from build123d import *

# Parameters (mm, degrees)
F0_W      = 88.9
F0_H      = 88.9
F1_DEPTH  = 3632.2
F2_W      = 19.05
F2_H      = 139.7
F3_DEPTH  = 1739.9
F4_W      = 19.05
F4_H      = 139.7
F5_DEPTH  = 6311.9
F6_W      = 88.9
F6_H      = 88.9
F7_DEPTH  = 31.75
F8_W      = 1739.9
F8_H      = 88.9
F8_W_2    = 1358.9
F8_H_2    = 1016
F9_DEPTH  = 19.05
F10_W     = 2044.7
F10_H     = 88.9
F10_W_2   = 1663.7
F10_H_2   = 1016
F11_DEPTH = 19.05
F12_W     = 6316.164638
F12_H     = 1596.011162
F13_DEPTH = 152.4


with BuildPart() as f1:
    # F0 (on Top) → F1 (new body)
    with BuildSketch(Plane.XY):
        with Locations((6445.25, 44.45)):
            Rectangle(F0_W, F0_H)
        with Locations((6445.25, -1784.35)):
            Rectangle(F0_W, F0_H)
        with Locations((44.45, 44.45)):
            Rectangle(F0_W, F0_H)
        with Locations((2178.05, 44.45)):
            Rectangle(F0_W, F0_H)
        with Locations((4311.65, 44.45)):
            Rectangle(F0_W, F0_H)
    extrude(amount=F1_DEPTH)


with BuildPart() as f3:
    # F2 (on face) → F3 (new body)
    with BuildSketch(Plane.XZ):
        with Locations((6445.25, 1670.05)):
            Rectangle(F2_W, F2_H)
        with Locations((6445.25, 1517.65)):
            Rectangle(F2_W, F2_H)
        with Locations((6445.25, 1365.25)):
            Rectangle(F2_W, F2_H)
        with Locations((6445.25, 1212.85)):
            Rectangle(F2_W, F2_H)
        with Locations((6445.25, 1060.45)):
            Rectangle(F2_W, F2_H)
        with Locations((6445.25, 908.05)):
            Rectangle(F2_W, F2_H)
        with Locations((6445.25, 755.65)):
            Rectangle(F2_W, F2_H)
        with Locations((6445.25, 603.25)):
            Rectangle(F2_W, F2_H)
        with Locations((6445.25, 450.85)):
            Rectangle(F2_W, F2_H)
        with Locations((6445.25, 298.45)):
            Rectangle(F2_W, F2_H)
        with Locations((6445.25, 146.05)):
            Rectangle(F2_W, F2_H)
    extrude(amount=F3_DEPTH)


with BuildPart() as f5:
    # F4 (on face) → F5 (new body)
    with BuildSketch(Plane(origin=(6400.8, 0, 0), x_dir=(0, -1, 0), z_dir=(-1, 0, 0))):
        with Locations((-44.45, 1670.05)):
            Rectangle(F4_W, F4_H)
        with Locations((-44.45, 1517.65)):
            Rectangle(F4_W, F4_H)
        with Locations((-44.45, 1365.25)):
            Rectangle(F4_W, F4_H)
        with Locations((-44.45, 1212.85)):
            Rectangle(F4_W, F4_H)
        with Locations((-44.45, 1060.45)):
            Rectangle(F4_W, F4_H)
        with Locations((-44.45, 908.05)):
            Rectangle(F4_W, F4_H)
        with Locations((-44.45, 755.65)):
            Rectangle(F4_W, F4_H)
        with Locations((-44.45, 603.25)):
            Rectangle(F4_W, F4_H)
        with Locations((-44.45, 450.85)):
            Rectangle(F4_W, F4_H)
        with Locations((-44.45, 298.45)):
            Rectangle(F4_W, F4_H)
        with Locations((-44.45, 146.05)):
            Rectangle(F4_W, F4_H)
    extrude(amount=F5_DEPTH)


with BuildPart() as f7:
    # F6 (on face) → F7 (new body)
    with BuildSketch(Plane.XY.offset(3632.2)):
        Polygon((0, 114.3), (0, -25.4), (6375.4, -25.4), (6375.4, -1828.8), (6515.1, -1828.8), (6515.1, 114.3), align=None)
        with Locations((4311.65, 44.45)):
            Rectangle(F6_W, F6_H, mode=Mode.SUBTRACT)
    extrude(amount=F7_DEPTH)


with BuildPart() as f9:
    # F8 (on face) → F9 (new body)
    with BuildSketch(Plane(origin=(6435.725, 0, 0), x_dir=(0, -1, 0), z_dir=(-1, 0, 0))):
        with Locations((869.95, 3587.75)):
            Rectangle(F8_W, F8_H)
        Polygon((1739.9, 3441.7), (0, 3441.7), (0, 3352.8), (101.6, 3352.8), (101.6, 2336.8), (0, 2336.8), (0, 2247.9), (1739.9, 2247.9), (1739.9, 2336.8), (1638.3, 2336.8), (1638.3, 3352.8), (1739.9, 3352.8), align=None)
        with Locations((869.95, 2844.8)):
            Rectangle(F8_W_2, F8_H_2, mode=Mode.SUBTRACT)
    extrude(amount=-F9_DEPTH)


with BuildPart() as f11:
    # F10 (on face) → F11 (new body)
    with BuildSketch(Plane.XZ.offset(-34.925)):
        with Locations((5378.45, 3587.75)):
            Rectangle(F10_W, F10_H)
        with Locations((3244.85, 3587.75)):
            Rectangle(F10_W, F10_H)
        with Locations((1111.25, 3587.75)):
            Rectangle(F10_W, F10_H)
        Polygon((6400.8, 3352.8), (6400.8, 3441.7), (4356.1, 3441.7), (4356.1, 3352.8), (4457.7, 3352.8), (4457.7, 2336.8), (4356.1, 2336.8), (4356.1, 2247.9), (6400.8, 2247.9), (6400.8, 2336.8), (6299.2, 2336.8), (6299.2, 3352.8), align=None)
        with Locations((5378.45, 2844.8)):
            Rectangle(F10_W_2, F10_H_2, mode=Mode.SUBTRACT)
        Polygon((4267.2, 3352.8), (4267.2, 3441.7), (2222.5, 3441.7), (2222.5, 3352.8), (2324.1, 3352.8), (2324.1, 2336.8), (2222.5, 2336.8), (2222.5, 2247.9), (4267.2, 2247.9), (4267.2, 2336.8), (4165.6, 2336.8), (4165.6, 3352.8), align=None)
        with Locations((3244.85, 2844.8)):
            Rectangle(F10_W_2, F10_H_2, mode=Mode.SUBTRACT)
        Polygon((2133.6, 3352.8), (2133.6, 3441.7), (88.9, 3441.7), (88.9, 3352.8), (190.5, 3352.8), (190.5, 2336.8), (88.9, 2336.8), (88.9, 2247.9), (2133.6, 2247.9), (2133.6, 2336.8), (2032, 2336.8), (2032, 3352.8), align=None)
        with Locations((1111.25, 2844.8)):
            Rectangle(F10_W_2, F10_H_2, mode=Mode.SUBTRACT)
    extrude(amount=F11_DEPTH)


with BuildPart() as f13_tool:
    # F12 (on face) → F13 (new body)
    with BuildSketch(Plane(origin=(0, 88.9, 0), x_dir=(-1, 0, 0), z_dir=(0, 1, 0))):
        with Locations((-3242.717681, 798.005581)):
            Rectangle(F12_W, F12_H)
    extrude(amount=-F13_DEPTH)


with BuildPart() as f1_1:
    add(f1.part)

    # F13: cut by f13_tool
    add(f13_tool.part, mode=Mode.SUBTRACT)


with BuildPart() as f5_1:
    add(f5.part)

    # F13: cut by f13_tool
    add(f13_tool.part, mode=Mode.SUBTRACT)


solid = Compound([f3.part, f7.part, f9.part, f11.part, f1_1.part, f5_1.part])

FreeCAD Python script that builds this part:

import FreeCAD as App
import Part
import Sketcher
from FreeCAD import Vector
Q = App.Units.Quantity


def add_polygon(sketch, points):
    """Adds a closed chain of lines whose ends are joined by coincident constraints."""
    first, n = sketch.GeometryCount, len(points)
    for a, b in zip(points, points[1:] + points[:1]):
        sketch.addGeometry(Part.LineSegment(App.Vector(*a, 0), App.Vector(*b, 0)), False)
    for i in range(n):
        sketch.addConstraint(Sketcher.Constraint("Coincident", first + i, 2, first + (i + 1) % n, 1))

doc = App.newDocument("Part")
body = doc.addObject("PartDesign::Body", "Body")
body.AllowCompound = True

# Sketch on XY plane
sketch1 = doc.addObject("Sketcher::SketchObject", "Sketch")
body.addObject(sketch1)
sketch1.AttachmentSupport = (doc.XY_Plane, [""])
sketch1.MapMode = "FlatFace"
add_polygon(sketch1, [(6401, 89), (6401, 0), (6490, 0), (6490, 89)])  # lines 0-3
add_polygon(sketch1, [(6401, -1740), (6401, -1829), (6490, -1829), (6490, -1740)])  # lines 4-7
add_polygon(sketch1, [(0, 89), (0, 0), (89, 0), (89, 89)])  # lines 8-11
add_polygon(sketch1, [(2134, 89), (2134, 0), (2222, 0), (2222, 89)])  # lines 12-15
add_polygon(sketch1, [(4267, 89), (4267, 0), (4356, 0), (4356, 89)])  # lines 16-19
sketch1.addConstraint([
    Sketcher.Constraint("Vertical", 0),
    Sketcher.Constraint("Horizontal", 1),
    Sketcher.Constraint("Vertical", 2),
    Sketcher.Constraint("Horizontal", 3),
    Sketcher.Constraint("Vertical", 4),
    Sketcher.Constraint("Horizontal", 5),
    Sketcher.Constraint("Vertical", 6),
    Sketcher.Constraint("Horizontal", 7),
    Sketcher.Constraint("Vertical", 8),
    Sketcher.Constraint("Horizontal", 9),
    Sketcher.Constraint("Vertical", 10),
    Sketcher.Constraint("Horizontal", 11),
    Sketcher.Constraint("Vertical", 12),
    Sketcher.Constraint("Horizontal", 13),
    Sketcher.Constraint("Vertical", 14),
    Sketcher.Constraint("Horizontal", 15),
    Sketcher.Constraint("Vertical", 16),
    Sketcher.Constraint("Horizontal", 17),
    Sketcher.Constraint("Vertical", 18),
    Sketcher.Constraint("Horizontal", 19),
    Sketcher.Constraint("Coincident", 8, 2, -1, 1),
    Sketcher.Constraint("PointOnObject", 0, 2, -1),
    Sketcher.Constraint("PointOnObject", 12, 2, -1),
    Sketcher.Constraint("PointOnObject", 16, 2, -1),
    Sketcher.Constraint("Horizontal", 3, 2, 10, 2),
    Sketcher.Constraint("Horizontal", 11, 2, 14, 2),
    Sketcher.Constraint("Horizontal", 15, 2, 18, 2),
    Sketcher.Constraint("Vertical", 3, 2, 4, 2),
    Sketcher.Constraint("Vertical", 2, 2, 5, 2),
    Sketcher.Constraint("Equal", 7, 9),
    Sketcher.Constraint("Equal", 11, 13),
    Sketcher.Constraint("Equal", 15, 17),
    Sketcher.Constraint("Equal", 19, 0),
    Sketcher.Constraint("Equal", 2, 4),
    Sketcher.Constraint("DistanceX", 1, 1, 1, 2, Q("3.5 in")),
    Sketcher.Constraint("DistanceX", -1, 1, 0, 2, Q("252 in")),
    Sketcher.Constraint("DistanceY", 4, 2, -1, 1, Q("72 in")),
    Sketcher.Constraint("DistanceX", -1, 1, 12, 2, Q("84 in")),
    Sketcher.Constraint("DistanceX", -1, 1, 16, 2, Q("168 in")),
])
pad1 = doc.addObject("PartDesign::Pad", "Pad")
body.addObject(pad1)
pad1.Profile = sketch1
pad1.Length = Q("143 in")
body2 = doc.addObject("PartDesign::Body", "Body001")
body2.AllowCompound = True

# Sketch on XZ plane
sketch2 = doc.addObject("Sketcher::SketchObject", "Sketch001")
body2.addObject(sketch2)
sketch2.AttachmentSupport = (doc.getObject("XZ_Plane001"), [""])
sketch2.MapMode = "FlatFace"
add_polygon(sketch2, [(6436, 1740), (6436, 1600), (6455, 1600), (6455, 1740)])  # lines 0-3
add_polygon(sketch2, [(6436, 1588), (6436, 1448), (6455, 1448), (6455, 1588)])  # lines 4-7
add_polygon(sketch2, [(6436, 1435), (6436, 1295), (6455, 1295), (6455, 1435)])  # lines 8-11
add_polygon(sketch2, [(6436, 1283), (6436, 1143), (6455, 1143), (6455, 1283)])  # lines 12-15
add_polygon(sketch2, [(6436, 1130), (6436, 991), (6455, 991), (6455, 1130)])  # lines 16-19
add_polygon(sketch2, [(6436, 978), (6436, 838), (6455, 838), (6455, 978)])  # lines 20-23
add_polygon(sketch2, [(6436, 826), (6436, 686), (6455, 686), (6455, 826)])  # lines 24-27
add_polygon(sketch2, [(6436, 673), (6436, 533), (6455, 533), (6455, 673)])  # lines 28-31
add_polygon(sketch2, [(6436, 521), (6436, 381), (6455, 381), (6455, 521)])  # lines 32-35
add_polygon(sketch2, [(6436, 368), (6436, 229), (6455, 229), (6455, 368)])  # lines 36-39
add_polygon(sketch2, [(6436, 216), (6436, 76), (6455, 76), (6455, 216)])  # lines 40-43
sketch2.addConstraint([
    Sketcher.Constraint("Vertical", 0),
    Sketcher.Constraint("Horizontal", 1),
    Sketcher.Constraint("Vertical", 2),
    Sketcher.Constraint("Horizontal", 3),
    Sketcher.Constraint("Vertical", 4),
    Sketcher.Constraint("Horizontal", 5),
    Sketcher.Constraint("Vertical", 6),
    Sketcher.Constraint("Horizontal", 7),
    Sketcher.Constraint("Vertical", 8),
    Sketcher.Constraint("Horizontal", 9),
    Sketcher.Constraint("Vertical", 10),
    Sketcher.Constraint("Horizontal", 11),
    Sketcher.Constraint("Vertical", 12),
    Sketcher.Constraint("Horizontal", 13),
    Sketcher.Constraint("Vertical", 14),
    Sketcher.Constraint("Horizontal", 15),
    Sketcher.Constraint("Vertical", 16),
    Sketcher.Constraint("Horizontal", 17),
    Sketcher.Constraint("Vertical", 18),
    Sketcher.Constraint("Horizontal", 19),
    Sketcher.Constraint("Vertical", 20),
    Sketcher.Constraint("Horizontal", 21),
    Sketcher.Constraint("Vertical", 22),
    Sketcher.Constraint("Horizontal", 23),
    Sketcher.Constraint("Vertical", 24),
    Sketcher.Constraint("Horizontal", 25),
    Sketcher.Constraint("Vertical", 26),
    Sketcher.Constraint("Horizontal", 27),
    Sketcher.Constraint("Vertical", 28),
    Sketcher.Constraint("Horizontal", 29),
    Sketcher.Constraint("Vertical", 30),
    Sketcher.Constraint("Horizontal", 31),
    Sketcher.Constraint("Vertical", 32),
    Sketcher.Constraint("Horizontal", 33),
    Sketcher.Constraint("Vertical", 34),
    Sketcher.Constraint("Horizontal", 35),
    Sketcher.Constraint("Vertical", 36),
    Sketcher.Constraint("Horizontal", 37),
    Sketcher.Constraint("Vertical", 38),
    Sketcher.Constraint("Horizontal", 39),
    Sketcher.Constraint("Vertical", 40),
    Sketcher.Constraint("Horizontal", 41),
    Sketcher.Constraint("Vertical", 42),
    Sketcher.Constraint("Horizontal", 43),
    Sketcher.Constraint("Vertical", 3, 2, 4, 2),
    Sketcher.Constraint("Vertical", 2, 2, 5, 2),
    Sketcher.Constraint("Vertical", 7, 2, 8, 2),
    Sketcher.Constraint("Vertical", 6, 2, 9, 2),
    Sketcher.Constraint("Vertical", 11, 2, 12, 2),
    Sketcher.Constraint("Vertical", 10, 2, 13, 2),
    Sketcher.Constraint("Vertical", 15, 2, 16, 2),
    Sketcher.Constraint("Vertical", 14, 2, 17, 2),
    Sketcher.Constraint("Vertical", 19, 2, 20, 2),
    Sketcher.Constraint("Vertical", 18, 2, 21, 2),
    Sketcher.Constraint("Vertical", 23, 2, 24, 2),
    Sketcher.Constraint("Vertical", 22, 2, 25, 2),
    Sketcher.Constraint("Vertical", 27, 2, 28, 2),
    Sketcher.Constraint("Vertical", 26, 2, 29, 2),
    Sketcher.Constraint("Vertical", 31, 2, 32, 2),
    Sketcher.Constraint("Vertical", 30, 2, 33, 2),
    Sketcher.Constraint("Vertical", 35, 2, 36, 2),
    Sketcher.Constraint("Vertical", 34, 2, 37, 2),
    Sketcher.Constraint("Vertical", 39, 2, 40, 2),
    Sketcher.Constraint("Vertical", 38, 2, 41, 2),
    Sketcher.Constraint("Equal", 2, 4),
    Sketcher.Constraint("Equal", 6, 8),
    Sketcher.Constraint("Equal", 10, 12),
    Sketcher.Constraint("Equal", 14, 16),
    Sketcher.Constraint("Equal", 18, 20),
    Sketcher.Constraint("Equal", 22, 24),
    Sketcher.Constraint("Equal", 26, 28),
    Sketcher.Constraint("Equal", 30, 32),
    Sketcher.Constraint("Equal", 34, 36),
    Sketcher.Constraint("Equal", 38, 40),
    Sketcher.Constraint("DistanceY", 0, 2, 0, 1, Q("5.5 in")),
    Sketcher.Constraint("DistanceY", -1, 1, 0, 2, Q("63 in")),
    Sketcher.Constraint("DistanceY", -1, 1, 4, 2, Q("57 in")),
    Sketcher.Constraint("DistanceY", -1, 1, 8, 2, Q("51 in")),
    Sketcher.Constraint("DistanceY", -1, 1, 12, 2, Q("45 in")),
    Sketcher.Constraint("DistanceY", -1, 1, 16, 2, Q("39 in")),
    Sketcher.Constraint("DistanceY", -1, 1, 20, 2, Q("33 in")),
    Sketcher.Constraint("DistanceY", -1, 1, 24, 2, Q("27 in")),
    Sketcher.Constraint("DistanceY", -1, 1, 28, 2, Q("21 in")),
    Sketcher.Constraint("DistanceY", -1, 1, 32, 2, Q("15 in")),
    Sketcher.Constraint("DistanceY", -1, 1, 36, 2, Q("9 in")),
    Sketcher.Constraint("DistanceY", -1, 1, 40, 2, Q("3 in")),
    Sketcher.Constraint("DistanceX", 1, 1, 1, 2, Q("0.75 in")),
    Sketcher.Constraint("DistanceX", -1, 1, 0, 2, Q("253.375 in")),
])
pad2 = doc.addObject("PartDesign::Pad", "Pad001")
body2.addObject(pad2)
pad2.Profile = sketch2
pad2.Length = Q("68.5 in")
body3 = doc.addObject("PartDesign::Body", "Body002")
body3.AllowCompound = True

# Sketch on YZ plane
sketch3 = doc.addObject("Sketcher::SketchObject", "Sketch002")
body3.addObject(sketch3)
sketch3.AttachmentSupport = (doc.getObject("YZ_Plane002"), [""])
sketch3.MapMode = "FlatFace"
sketch3.AttachmentOffset = App.Placement(Vector(0, 0, 252 * 25.4), App.Rotation())
add_polygon(sketch3, [(54, 1740), (54, 1600), (35, 1600), (35, 1740)])  # lines 0-3
add_polygon(sketch3, [(54, 1588), (54, 1448), (35, 1448), (35, 1588)])  # lines 4-7
add_polygon(sketch3, [(54, 1435), (54, 1295), (35, 1295), (35, 1435)])  # lines 8-11
add_polygon(sketch3, [(54, 1283), (54, 1143), (35, 1143), (35, 1283)])  # lines 12-15
add_polygon(sketch3, [(54, 1130), (54, 991), (35, 991), (35, 1130)])  # lines 16-19
add_polygon(sketch3, [(54, 978), (54, 838), (35, 838), (35, 978)])  # lines 20-23
add_polygon(sketch3, [(54, 826), (54, 686), (35, 686), (35, 826)])  # lines 24-27
add_polygon(sketch3, [(54, 673), (54, 533), (35, 533), (35, 673)])  # lines 28-31
add_polygon(sketch3, [(54, 521), (54, 381), (35, 381), (35, 521)])  # lines 32-35
add_polygon(sketch3, [(54, 368), (54, 229), (35, 229), (35, 368)])  # lines 36-39
add_polygon(sketch3, [(54, 216), (54, 76), (35, 76), (35, 216)])  # lines 40-43
sketch3.addConstraint([
    Sketcher.Constraint("Vertical", 0),
    Sketcher.Constraint("Horizontal", 1),
    Sketcher.Constraint("Vertical", 2),
    Sketcher.Constraint("Horizontal", 3),
    Sketcher.Constraint("Vertical", 4),
    Sketcher.Constraint("Horizontal", 5),
    Sketcher.Constraint("Vertical", 6),
    Sketcher.Constraint("Horizontal", 7),
    Sketcher.Constraint("Vertical", 8),
    Sketcher.Constraint("Horizontal", 9),
    Sketcher.Constraint("Vertical", 10),
    Sketcher.Constraint("Horizontal", 11),
    Sketcher.Constraint("Vertical", 12),
    Sketcher.Constraint("Horizontal", 13),
    Sketcher.Constraint("Vertical", 14),
    Sketcher.Constraint("Horizontal", 15),
    Sketcher.Constraint("Vertical", 16),
    Sketcher.Constraint("Horizontal", 17),
    Sketcher.Constraint("Vertical", 18),
    Sketcher.Constraint("Horizontal", 19),
    Sketcher.Constraint("Vertical", 20),
    Sketcher.Constraint("Horizontal", 21),
    Sketcher.Constraint("Vertical", 22),
    Sketcher.Constraint("Horizontal", 23),
    Sketcher.Constraint("Vertical", 24),
    Sketcher.Constraint("Horizontal", 25),
    Sketcher.Constraint("Vertical", 26),
    Sketcher.Constraint("Horizontal", 27),
    Sketcher.Constraint("Vertical", 28),
    Sketcher.Constraint("Horizontal", 29),
    Sketcher.Constraint("Vertical", 30),
    Sketcher.Constraint("Horizontal", 31),
    Sketcher.Constraint("Vertical", 32),
    Sketcher.Constraint("Horizontal", 33),
    Sketcher.Constraint("Vertical", 34),
    Sketcher.Constraint("Horizontal", 35),
    Sketcher.Constraint("Vertical", 36),
    Sketcher.Constraint("Horizontal", 37),
    Sketcher.Constraint("Vertical", 38),
    Sketcher.Constraint("Horizontal", 39),
    Sketcher.Constraint("Vertical", 40),
    Sketcher.Constraint("Horizontal", 41),
    Sketcher.Constraint("Vertical", 42),
    Sketcher.Constraint("Horizontal", 43),
    Sketcher.Constraint("Vertical", 3, 2, 4, 2),
    Sketcher.Constraint("Vertical", 2, 2, 5, 2),
    Sketcher.Constraint("Vertical", 7, 2, 8, 2),
    Sketcher.Constraint("Vertical", 6, 2, 9, 2),
    Sketcher.Constraint("Vertical", 11, 2, 12, 2),
    Sketcher.Constraint("Vertical", 10, 2, 13, 2),
    Sketcher.Constraint("Vertical", 15, 2, 16, 2),
    Sketcher.Constraint("Vertical", 14, 2, 17, 2),
    Sketcher.Constraint("Vertical", 19, 2, 20, 2),
    Sketcher.Constraint("Vertical", 18, 2, 21, 2),
    Sketcher.Constraint("Vertical", 23, 2, 24, 2),
    Sketcher.Constraint("Vertical", 22, 2, 25, 2),
    Sketcher.Constraint("Vertical", 27, 2, 28, 2),
    Sketcher.Constraint("Vertical", 26, 2, 29, 2),
    Sketcher.Constraint("Vertical", 31, 2, 32, 2),
    Sketcher.Constraint("Vertical", 30, 2, 33, 2),
    Sketcher.Constraint("Vertical", 35, 2, 36, 2),
    Sketcher.Constraint("Vertical", 34, 2, 37, 2),
    Sketcher.Constraint("Vertical", 39, 2, 40, 2),
    Sketcher.Constraint("Vertical", 38, 2, 41, 2),
    Sketcher.Constraint("Equal", 2, 4),
    Sketcher.Constraint("Equal", 6, 8),
    Sketcher.Constraint("Equal", 10, 12),
    Sketcher.Constraint("Equal", 14, 16),
    Sketcher.Constraint("Equal", 18, 20),
    Sketcher.Constraint("Equal", 22, 24),
    Sketcher.Constraint("Equal", 26, 28),
    Sketcher.Constraint("Equal", 30, 32),
    Sketcher.Constraint("Equal", 34, 36),
    Sketcher.Constraint("Equal", 38, 40),
    Sketcher.Constraint("DistanceY", 0, 2, 0, 1, Q("5.5 in")),
    Sketcher.Constraint("DistanceY", -1, 1, 0, 2, Q("63 in")),
    Sketcher.Constraint("DistanceY", -1, 1, 4, 2, Q("57 in")),
    Sketcher.Constraint("DistanceY", -1, 1, 8, 2, Q("51 in")),
    Sketcher.Constraint("DistanceY", -1, 1, 12, 2, Q("45 in")),
    Sketcher.Constraint("DistanceY", -1, 1, 16, 2, Q("39 in")),
    Sketcher.Constraint("DistanceY", -1, 1, 20, 2, Q("33 in")),
    Sketcher.Constraint("DistanceY", -1, 1, 24, 2, Q("27 in")),
    Sketcher.Constraint("DistanceY", -1, 1, 28, 2, Q("21 in")),
    Sketcher.Constraint("DistanceY", -1, 1, 32, 2, Q("15 in")),
    Sketcher.Constraint("DistanceY", -1, 1, 36, 2, Q("9 in")),
    Sketcher.Constraint("DistanceY", -1, 1, 40, 2, Q("3 in")),
    Sketcher.Constraint("DistanceX", 1, 2, 1, 1, Q("0.75 in")),
    Sketcher.Constraint("DistanceX", -1, 1, 0, 2, Q("2.125 in")),
])
pad3 = doc.addObject("PartDesign::Pad", "Pad002")
body3.addObject(pad3)
pad3.Profile = sketch3
pad3.Length = Q("248.5 in")
pad3.Reversed = True
body4 = doc.addObject("PartDesign::Body", "Body003")

# Sketch on XY plane
sketch4 = doc.addObject("Sketcher::SketchObject", "Sketch003")
body4.addObject(sketch4)
sketch4.AttachmentSupport = (doc.getObject("XY_Plane003"), [""])
sketch4.MapMode = "FlatFace"
sketch4.AttachmentOffset = App.Placement(Vector(0, 0, 143 * 25.4), App.Rotation())
add_polygon(sketch4, [(0, 114), (0, -25), (6375, -25), (6375, -1829), (6515, -1829), (6515, 114)])  # lines 0-5
add_polygon(sketch4, [(4356, 0), (4267, 0), (4267, 89), (4356, 89)])  # lines 6-9
sketch4.addConstraint([
    Sketcher.Constraint("Vertical", 0),
    Sketcher.Constraint("Horizontal", 1),
    Sketcher.Constraint("Vertical", 2),
    Sketcher.Constraint("Horizontal", 3),
    Sketcher.Constraint("Vertical", 4),
    Sketcher.Constraint("Horizontal", 5),
    Sketcher.Constraint("Horizontal", 6),
    Sketcher.Constraint("Vertical", 7),
    Sketcher.Constraint("Horizontal", 8),
    Sketcher.Constraint("Vertical", 9),
    Sketcher.Constraint("PointOnObject", 0, 2, -2),
    Sketcher.Constraint("PointOnObject", 6, 2, -1),
    Sketcher.Constraint("Equal", 3, 0),
    Sketcher.Constraint("Equal", 8, 7),
    Sketcher.Constraint("DistanceX", 1, 1, 1, 2, Q("251 in")),
    Sketcher.Constraint("DistanceY", 2, 2, 2, 1, Q("71 in")),
    Sketcher.Constraint("DistanceX", 3, 1, 3, 2, Q("5.5 in")),
    Sketcher.Constraint("DistanceX", 6, 2, 6, 1, Q("3.5 in")),
    Sketcher.Constraint("DistanceY", 0, 2, -1, 1, Q("1 in")),
    Sketcher.Constraint("DistanceX", -1, 1, 6, 2, Q("168 in")),
])
pad4 = doc.addObject("PartDesign::Pad", "Pad003")
body4.addObject(pad4)
pad4.Profile = sketch4
pad4.Length = Q("1.25 in")
body5 = doc.addObject("PartDesign::Body", "Body004")
body5.AllowCompound = True

# Sketch on YZ plane
sketch5 = doc.addObject("Sketcher::SketchObject", "Sketch004")
body5.addObject(sketch5)
sketch5.AttachmentSupport = (doc.getObject("YZ_Plane004"), [""])
sketch5.MapMode = "FlatFace"
sketch5.AttachmentOffset = App.Placement(Vector(0, 0, 253.375 * 25.4), App.Rotation())
add_polygon(sketch5, [(0, 3632), (0, 3543), (-1740, 3543), (-1740, 3632)])  # lines 0-3
add_polygon(sketch5, [(-1740, 3442), (0, 3442), (0, 3353), (-102, 3353), (-102, 2337), (0, 2337), (0, 2248), (-1740, 2248), (-1740, 2337), (-1638, 2337), (-1638, 3353), (-1740, 3353)])  # lines 4-15
add_polygon(sketch5, [(-1549, 2337), (-190, 2337), (-190, 3353), (-1549, 3353)])  # lines 16-19
sketch5.addConstraint([
    Sketcher.Constraint("Vertical", 0),
    Sketcher.Constraint("Horizontal", 1),
    Sketcher.Constraint("Vertical", 2),
    Sketcher.Constraint("Horizontal", 3),
    Sketcher.Constraint("Horizontal", 4),
    Sketcher.Constraint("Vertical", 5),
    Sketcher.Constraint("Horizontal", 6),
    Sketcher.Constraint("Vertical", 7),
    Sketcher.Constraint("Horizontal", 8),
    Sketcher.Constraint("Vertical", 9),
    Sketcher.Constraint("Horizontal", 10),
    Sketcher.Constraint("Vertical", 11),
    Sketcher.Constraint("Horizontal", 12),
    Sketcher.Constraint("Vertical", 13),
    Sketcher.Constraint("Horizontal", 14),
    Sketcher.Constraint("Vertical", 15),
    Sketcher.Constraint("Horizontal", 16),
    Sketcher.Constraint("Vertical", 17),
    Sketcher.Constraint("Horizontal", 18),
    Sketcher.Constraint("Vertical", 19),
    Sketcher.Constraint("PointOnObject", 0, 2, -2),
    Sketcher.Constraint("PointOnObject", 4, 2, -2),
    Sketcher.Constraint("PointOnObject", 8, 2, -2),
    Sketcher.Constraint("Horizontal", 8, 2, 11, 2),
    Sketcher.Constraint("Horizontal", 6, 2, 13, 2),
    Sketcher.Constraint("Horizontal", 12, 2, 16, 2),
    Sketcher.Constraint("Horizontal", 14, 2, 17, 2),
    Sketcher.Constraint("Vertical", 2, 2, 10, 2),
    Sketcher.Constraint("Vertical", 11, 2, 14, 2),
    Sketcher.Constraint("Equal", 8, 12),
    Sketcher.Constraint("Equal", 2, 5),
    Sketcher.Constraint("Equal", 5, 9),
    Sketcher.Constraint("DistanceX", 6, 2, 6, 1, Q("4 in")),
    Sketcher.Constraint("DistanceY", 7, 2, 7, 1, Q("40 in")),
    Sketcher.Constraint("DistanceX", 1, 2, 1, 1, Q("68.5 in")),
    Sketcher.Constraint("DistanceX", 16, 1, 16, 2, Q("53.5 in")),
    Sketcher.Constraint("DistanceY", 0, 2, 0, 1, Q("3.5 in")),
    Sketcher.Constraint("DistanceY", -1, 1, 2, 2, Q("143 in")),
    Sketcher.Constraint("DistanceY", -1, 1, 5, 2, Q("132 in")),
    Sketcher.Constraint("DistanceX", 18, 2, -1, 1, Q("61 in")),
])
pad5 = doc.addObject("PartDesign::Pad", "Pad004")
body5.addObject(pad5)
pad5.Profile = sketch5
pad5.Length = Q("0.75 in")
body6 = doc.addObject("PartDesign::Body", "Body005")
body6.AllowCompound = True

# Sketch on XZ plane
sketch6 = doc.addObject("Sketcher::SketchObject", "Sketch005")
body6.addObject(sketch6)
sketch6.AttachmentSupport = (doc.getObject("XZ_Plane005"), [""])
sketch6.MapMode = "FlatFace"
sketch6.AttachmentOffset = App.Placement(Vector(0, 0, -1.375 * 25.4), App.Rotation())
add_polygon(sketch6, [(4356, 3632), (4356, 3543), (6401, 3543), (6401, 3632)])  # lines 0-3
add_polygon(sketch6, [(2222, 3632), (2222, 3543), (4267, 3543), (4267, 3632)])  # lines 4-7
add_polygon(sketch6, [(89, 3632), (89, 3543), (2134, 3543), (2134, 3632)])  # lines 8-11
add_polygon(sketch6, [(6401, 3353), (6401, 3442), (4356, 3442), (4356, 3353), (4458, 3353), (4458, 2337), (4356, 2337), (4356, 2248), (6401, 2248), (6401, 2337), (6299, 2337), (6299, 3353)])  # lines 12-23
add_polygon(sketch6, [(6210, 2337), (4547, 2337), (4547, 3353), (6210, 3353)])  # lines 24-27
add_polygon(sketch6, [(4267, 3353), (4267, 3442), (2222, 3442), (2222, 3353), (2324, 3353), (2324, 2337), (2222, 2337), (2222, 2248), (4267, 2248), (4267, 2337), (4166, 2337), (4166, 3353)])  # lines 28-39
add_polygon(sketch6, [(4077, 2337), (2413, 2337), (2413, 3353), (4077, 3353)])  # lines 40-43
add_polygon(sketch6, [(2134, 3353), (2134, 3442), (89, 3442), (89, 3353), (190, 3353), (190, 2337), (89, 2337), (89, 2248), (2134, 2248), (2134, 2337), (2032, 2337), (2032, 3353)])  # lines 44-55
add_polygon(sketch6, [(1943, 2337), (279, 2337), (279, 3353), (1943, 3353)])  # lines 56-59
sketch6.addConstraint([
    Sketcher.Constraint("Vertical", 0),
    Sketcher.Constraint("Horizontal", 1),
    Sketcher.Constraint("Vertical", 2),
    Sketcher.Constraint("Horizontal", 3),
    Sketcher.Constraint("Vertical", 4),
    Sketcher.Constraint("Horizontal", 5),
    Sketcher.Constraint("Vertical", 6),
    Sketcher.Constraint("Horizontal", 7),
    Sketcher.Constraint("Vertical", 8),
    Sketcher.Constraint("Horizontal", 9),
    Sketcher.Constraint("Vertical", 10),
    Sketcher.Constraint("Horizontal", 11),
    Sketcher.Constraint("Vertical", 12),
    Sketcher.Constraint("Horizontal", 13),
    Sketcher.Constraint("Vertical", 14),
    Sketcher.Constraint("Horizontal", 15),
    Sketcher.Constraint("Vertical", 16),
    Sketcher.Constraint("Horizontal", 17),
    Sketcher.Constraint("Vertical", 18),
    Sketcher.Constraint("Horizontal", 19),
    Sketcher.Constraint("Vertical", 20),
    Sketcher.Constraint("Horizontal", 21),
    Sketcher.Constraint("Vertical", 22),
    Sketcher.Constraint("Horizontal", 23),
    Sketcher.Constraint("Horizontal", 24),
    Sketcher.Constraint("Vertical", 25),
    Sketcher.Constraint("Horizontal", 26),
    Sketcher.Constraint("Vertical", 27),
    Sketcher.Constraint("Vertical", 28),
    Sketcher.Constraint("Horizontal", 29),
    Sketcher.Constraint("Vertical", 30),
    Sketcher.Constraint("Horizontal", 31),
    Sketcher.Constraint("Vertical", 32),
    Sketcher.Constraint("Horizontal", 33),
    Sketcher.Constraint("Vertical", 34),
    Sketcher.Constraint("Horizontal", 35),
    Sketcher.Constraint("Vertical", 36),
    Sketcher.Constraint("Horizontal", 37),
    Sketcher.Constraint("Vertical", 38),
    Sketcher.Constraint("Horizontal", 39),
    Sketcher.Constraint("Horizontal", 40),
    Sketcher.Constraint("Vertical", 41),
    Sketcher.Constraint("Horizontal", 42),
    Sketcher.Constraint("Vertical", 43),
    Sketcher.Constraint("Vertical", 44),
    Sketcher.Constraint("Horizontal", 45),
    Sketcher.Constraint("Vertical", 46),
    Sketcher.Constraint("Horizontal", 47),
    Sketcher.Constraint("Vertical", 48),
    Sketcher.Constraint("Horizontal", 49),
    Sketcher.Constraint("Vertical", 50),
    Sketcher.Constraint("Horizontal", 51),
    Sketcher.Constraint("Vertical", 52),
    Sketcher.Constraint("Horizontal", 53),
    Sketcher.Constraint("Vertical", 54),
    Sketcher.Constraint("Horizontal", 55),
    Sketcher.Constraint("Horizontal", 56),
    Sketcher.Constraint("Vertical", 57),
    Sketcher.Constraint("Horizontal", 58),
    Sketcher.Constraint("Vertical", 59),
    Sketcher.Constraint("Horizontal", 1, 2, 4, 2),
    Sketcher.Constraint("Horizontal", 3, 2, 6, 2),
    Sketcher.Constraint("Horizontal", 5, 2, 8, 2),
    Sketcher.Constraint("Horizontal", 7, 2, 10, 2),
    Sketcher.Constraint("Horizontal", 17, 2, 20, 2),
    Sketcher.Constraint("Horizontal", 15, 2, 22, 2),
    Sketcher.Constraint("Horizontal", 21, 2, 24, 2),
    Sketcher.Constraint("Horizontal", 23, 2, 25, 2),
    Sketcher.Constraint("Horizontal", 13, 2, 28, 2),
    Sketcher.Constraint("Horizontal", 26, 2, 30, 2),
    Sketcher.Constraint("Horizontal", 27, 2, 32, 2),
    Sketcher.Constraint("Horizontal", 19, 2, 34, 2),
    Sketcher.Constraint("Horizontal", 33, 2, 36, 2),
    Sketcher.Constraint("Horizontal", 31, 2, 38, 2),
    Sketcher.Constraint("Horizontal", 37, 2, 40, 2),
    Sketcher.Constraint("Horizontal", 39, 2, 41, 2),
    Sketcher.Constraint("Horizontal", 29, 2, 44, 2),
    Sketcher.Constraint("Horizontal", 42, 2, 46, 2),
    Sketcher.Constraint("Horizontal", 43, 2, 48, 2),
    Sketcher.Constraint("Horizontal", 35, 2, 50, 2),
    Sketcher.Constraint("Horizontal", 49, 2, 52, 2),
    Sketcher.Constraint("Horizontal", 47, 2, 54, 2),
    Sketcher.Constraint("Horizontal", 53, 2, 56, 2),
    Sketcher.Constraint("Horizontal", 55, 2, 57, 2),
    Sketcher.Constraint("Vertical", 2, 2, 12, 2),
    Sketcher.Constraint("Vertical", 3, 2, 13, 2),
    Sketcher.Constraint("Vertical", 14, 2, 17, 2),
    Sketcher.Constraint("Vertical", 12, 2, 19, 2),
    Sketcher.Constraint("Vertical", 6, 2, 28, 2),
    Sketcher.Constraint("Vertical", 7, 2, 29, 2),
    Sketcher.Constraint("Vertical", 30, 2, 33, 2),
    Sketcher.Constraint("Vertical", 28, 2, 35, 2),
    Sketcher.Constraint("Vertical", 10, 2, 44, 2),
    Sketcher.Constraint("Vertical", 11, 2, 45, 2),
    Sketcher.Constraint("Vertical", 46, 2, 49, 2),
    Sketcher.Constraint("Vertical", 44, 2, 51, 2),
    Sketcher.Constraint("Equal", 3, 5),
    Sketcher.Constraint("Equal", 7, 9),
    Sketcher.Constraint("Equal", 17, 21),
    Sketcher.Constraint("Equal", 23, 31),
    Sketcher.Constraint("Equal", 33, 37),
    Sketcher.Constraint("Equal", 26, 40),
    Sketcher.Constraint("Equal", 39, 47),
    Sketcher.Constraint("Equal", 49, 53),
    Sketcher.Constraint("Equal", 42, 56),
    Sketcher.Constraint("Equal", 10, 12),
    Sketcher.Constraint("Equal", 14, 18),
    Sketcher.Constraint("DistanceX", 15, 1, 15, 2, Q("4 in")),
    Sketcher.Constraint("DistanceY", 16, 2, 16, 1, Q("40 in")),
    Sketcher.Constraint("DistanceX", 1, 1, 1, 2, Q("80.5 in")),
    Sketcher.Constraint("DistanceX", 24, 2, 24, 1, Q("65.5 in")),
    Sketcher.Constraint("DistanceY", 0, 2, 0, 1, Q("3.5 in")),
    Sketcher.Constraint("DistanceX", -1, 1, 1, 2, Q("252 in")),
    Sketcher.Constraint("DistanceY", -1, 1, 2, 2, Q("143 in")),
    Sketcher.Constraint("DistanceX", -1, 1, 5, 2, Q("168 in")),
    Sketcher.Constraint("DistanceX", -1, 1, 9, 2, Q("84 in")),
    Sketcher.Constraint("DistanceY", -1, 1, 14, 2, Q("132 in")),
    Sketcher.Constraint("DistanceX", -1, 1, 24, 2, Q("179 in")),
    Sketcher.Constraint("DistanceX", -1, 1, 40, 2, Q("95 in")),
    Sketcher.Constraint("DistanceX", -1, 1, 56, 2, Q("11 in")),
])
pad6 = doc.addObject("PartDesign::Pad", "Pad005")
body6.addObject(pad6)
pad6.Profile = sketch6
pad6.Length = Q("0.75 in")
body7 = doc.addObject("PartDesign::Body", "Body006")

# Sketch on XZ plane
sketch7 = doc.addObject("Sketcher::SketchObject", "Sketch006")
body7.addObject(sketch7)
sketch7.AttachmentSupport = (doc.getObject("XZ_Plane006"), [""])
sketch7.MapMode = "FlatFace"
sketch7.AttachmentOffset = App.Placement(Vector(0, 0, -3.5 * 25.4), App.Rotation())
add_polygon(sketch7, [(6401, 1596), (6401, 0), (85, 0), (85, 1596)])  # lines 0-3
sketch7.addConstraint([
    Sketcher.Constraint("Vertical", 0),
    Sketcher.Constraint("Horizontal", 1),
    Sketcher.Constraint("Vertical", 2),
    Sketcher.Constraint("Horizontal", 3),
    Sketcher.Constraint("PointOnObject", 0, 2, -1),
    Sketcher.Constraint("DistanceX", -1, 1, 0, 2, Q("252 in")),
    Sketcher.Constraint("DistanceX", 1, 2, 1, 1, Q("6316.164638 mm")),
    Sketcher.Constraint("DistanceY", 0, 2, 0, 1, Q("1596.011162 mm")),
])
pad7 = doc.addObject("PartDesign::Pad", "Pad006")
body7.addObject(pad7)
pad7.Profile = sketch7
pad7.Length = Q("6 in")
body.AllowCompound = True
doc.recompute()

body8 = doc.addObject("PartDesign::Body", "Body007")
body8.BaseFeature = body7
boolean = doc.addObject("PartDesign::Boolean", "Boolean")
body.addObject(boolean)
boolean.Type = "Cut"
boolean.addObjects([body8])
doc.recompute()

boolean2 = doc.addObject("PartDesign::Boolean", "Boolean001")
body3.addObject(boolean2)
boolean2.Type = "Cut"
boolean2.addObjects([body7])

doc.recompute()
